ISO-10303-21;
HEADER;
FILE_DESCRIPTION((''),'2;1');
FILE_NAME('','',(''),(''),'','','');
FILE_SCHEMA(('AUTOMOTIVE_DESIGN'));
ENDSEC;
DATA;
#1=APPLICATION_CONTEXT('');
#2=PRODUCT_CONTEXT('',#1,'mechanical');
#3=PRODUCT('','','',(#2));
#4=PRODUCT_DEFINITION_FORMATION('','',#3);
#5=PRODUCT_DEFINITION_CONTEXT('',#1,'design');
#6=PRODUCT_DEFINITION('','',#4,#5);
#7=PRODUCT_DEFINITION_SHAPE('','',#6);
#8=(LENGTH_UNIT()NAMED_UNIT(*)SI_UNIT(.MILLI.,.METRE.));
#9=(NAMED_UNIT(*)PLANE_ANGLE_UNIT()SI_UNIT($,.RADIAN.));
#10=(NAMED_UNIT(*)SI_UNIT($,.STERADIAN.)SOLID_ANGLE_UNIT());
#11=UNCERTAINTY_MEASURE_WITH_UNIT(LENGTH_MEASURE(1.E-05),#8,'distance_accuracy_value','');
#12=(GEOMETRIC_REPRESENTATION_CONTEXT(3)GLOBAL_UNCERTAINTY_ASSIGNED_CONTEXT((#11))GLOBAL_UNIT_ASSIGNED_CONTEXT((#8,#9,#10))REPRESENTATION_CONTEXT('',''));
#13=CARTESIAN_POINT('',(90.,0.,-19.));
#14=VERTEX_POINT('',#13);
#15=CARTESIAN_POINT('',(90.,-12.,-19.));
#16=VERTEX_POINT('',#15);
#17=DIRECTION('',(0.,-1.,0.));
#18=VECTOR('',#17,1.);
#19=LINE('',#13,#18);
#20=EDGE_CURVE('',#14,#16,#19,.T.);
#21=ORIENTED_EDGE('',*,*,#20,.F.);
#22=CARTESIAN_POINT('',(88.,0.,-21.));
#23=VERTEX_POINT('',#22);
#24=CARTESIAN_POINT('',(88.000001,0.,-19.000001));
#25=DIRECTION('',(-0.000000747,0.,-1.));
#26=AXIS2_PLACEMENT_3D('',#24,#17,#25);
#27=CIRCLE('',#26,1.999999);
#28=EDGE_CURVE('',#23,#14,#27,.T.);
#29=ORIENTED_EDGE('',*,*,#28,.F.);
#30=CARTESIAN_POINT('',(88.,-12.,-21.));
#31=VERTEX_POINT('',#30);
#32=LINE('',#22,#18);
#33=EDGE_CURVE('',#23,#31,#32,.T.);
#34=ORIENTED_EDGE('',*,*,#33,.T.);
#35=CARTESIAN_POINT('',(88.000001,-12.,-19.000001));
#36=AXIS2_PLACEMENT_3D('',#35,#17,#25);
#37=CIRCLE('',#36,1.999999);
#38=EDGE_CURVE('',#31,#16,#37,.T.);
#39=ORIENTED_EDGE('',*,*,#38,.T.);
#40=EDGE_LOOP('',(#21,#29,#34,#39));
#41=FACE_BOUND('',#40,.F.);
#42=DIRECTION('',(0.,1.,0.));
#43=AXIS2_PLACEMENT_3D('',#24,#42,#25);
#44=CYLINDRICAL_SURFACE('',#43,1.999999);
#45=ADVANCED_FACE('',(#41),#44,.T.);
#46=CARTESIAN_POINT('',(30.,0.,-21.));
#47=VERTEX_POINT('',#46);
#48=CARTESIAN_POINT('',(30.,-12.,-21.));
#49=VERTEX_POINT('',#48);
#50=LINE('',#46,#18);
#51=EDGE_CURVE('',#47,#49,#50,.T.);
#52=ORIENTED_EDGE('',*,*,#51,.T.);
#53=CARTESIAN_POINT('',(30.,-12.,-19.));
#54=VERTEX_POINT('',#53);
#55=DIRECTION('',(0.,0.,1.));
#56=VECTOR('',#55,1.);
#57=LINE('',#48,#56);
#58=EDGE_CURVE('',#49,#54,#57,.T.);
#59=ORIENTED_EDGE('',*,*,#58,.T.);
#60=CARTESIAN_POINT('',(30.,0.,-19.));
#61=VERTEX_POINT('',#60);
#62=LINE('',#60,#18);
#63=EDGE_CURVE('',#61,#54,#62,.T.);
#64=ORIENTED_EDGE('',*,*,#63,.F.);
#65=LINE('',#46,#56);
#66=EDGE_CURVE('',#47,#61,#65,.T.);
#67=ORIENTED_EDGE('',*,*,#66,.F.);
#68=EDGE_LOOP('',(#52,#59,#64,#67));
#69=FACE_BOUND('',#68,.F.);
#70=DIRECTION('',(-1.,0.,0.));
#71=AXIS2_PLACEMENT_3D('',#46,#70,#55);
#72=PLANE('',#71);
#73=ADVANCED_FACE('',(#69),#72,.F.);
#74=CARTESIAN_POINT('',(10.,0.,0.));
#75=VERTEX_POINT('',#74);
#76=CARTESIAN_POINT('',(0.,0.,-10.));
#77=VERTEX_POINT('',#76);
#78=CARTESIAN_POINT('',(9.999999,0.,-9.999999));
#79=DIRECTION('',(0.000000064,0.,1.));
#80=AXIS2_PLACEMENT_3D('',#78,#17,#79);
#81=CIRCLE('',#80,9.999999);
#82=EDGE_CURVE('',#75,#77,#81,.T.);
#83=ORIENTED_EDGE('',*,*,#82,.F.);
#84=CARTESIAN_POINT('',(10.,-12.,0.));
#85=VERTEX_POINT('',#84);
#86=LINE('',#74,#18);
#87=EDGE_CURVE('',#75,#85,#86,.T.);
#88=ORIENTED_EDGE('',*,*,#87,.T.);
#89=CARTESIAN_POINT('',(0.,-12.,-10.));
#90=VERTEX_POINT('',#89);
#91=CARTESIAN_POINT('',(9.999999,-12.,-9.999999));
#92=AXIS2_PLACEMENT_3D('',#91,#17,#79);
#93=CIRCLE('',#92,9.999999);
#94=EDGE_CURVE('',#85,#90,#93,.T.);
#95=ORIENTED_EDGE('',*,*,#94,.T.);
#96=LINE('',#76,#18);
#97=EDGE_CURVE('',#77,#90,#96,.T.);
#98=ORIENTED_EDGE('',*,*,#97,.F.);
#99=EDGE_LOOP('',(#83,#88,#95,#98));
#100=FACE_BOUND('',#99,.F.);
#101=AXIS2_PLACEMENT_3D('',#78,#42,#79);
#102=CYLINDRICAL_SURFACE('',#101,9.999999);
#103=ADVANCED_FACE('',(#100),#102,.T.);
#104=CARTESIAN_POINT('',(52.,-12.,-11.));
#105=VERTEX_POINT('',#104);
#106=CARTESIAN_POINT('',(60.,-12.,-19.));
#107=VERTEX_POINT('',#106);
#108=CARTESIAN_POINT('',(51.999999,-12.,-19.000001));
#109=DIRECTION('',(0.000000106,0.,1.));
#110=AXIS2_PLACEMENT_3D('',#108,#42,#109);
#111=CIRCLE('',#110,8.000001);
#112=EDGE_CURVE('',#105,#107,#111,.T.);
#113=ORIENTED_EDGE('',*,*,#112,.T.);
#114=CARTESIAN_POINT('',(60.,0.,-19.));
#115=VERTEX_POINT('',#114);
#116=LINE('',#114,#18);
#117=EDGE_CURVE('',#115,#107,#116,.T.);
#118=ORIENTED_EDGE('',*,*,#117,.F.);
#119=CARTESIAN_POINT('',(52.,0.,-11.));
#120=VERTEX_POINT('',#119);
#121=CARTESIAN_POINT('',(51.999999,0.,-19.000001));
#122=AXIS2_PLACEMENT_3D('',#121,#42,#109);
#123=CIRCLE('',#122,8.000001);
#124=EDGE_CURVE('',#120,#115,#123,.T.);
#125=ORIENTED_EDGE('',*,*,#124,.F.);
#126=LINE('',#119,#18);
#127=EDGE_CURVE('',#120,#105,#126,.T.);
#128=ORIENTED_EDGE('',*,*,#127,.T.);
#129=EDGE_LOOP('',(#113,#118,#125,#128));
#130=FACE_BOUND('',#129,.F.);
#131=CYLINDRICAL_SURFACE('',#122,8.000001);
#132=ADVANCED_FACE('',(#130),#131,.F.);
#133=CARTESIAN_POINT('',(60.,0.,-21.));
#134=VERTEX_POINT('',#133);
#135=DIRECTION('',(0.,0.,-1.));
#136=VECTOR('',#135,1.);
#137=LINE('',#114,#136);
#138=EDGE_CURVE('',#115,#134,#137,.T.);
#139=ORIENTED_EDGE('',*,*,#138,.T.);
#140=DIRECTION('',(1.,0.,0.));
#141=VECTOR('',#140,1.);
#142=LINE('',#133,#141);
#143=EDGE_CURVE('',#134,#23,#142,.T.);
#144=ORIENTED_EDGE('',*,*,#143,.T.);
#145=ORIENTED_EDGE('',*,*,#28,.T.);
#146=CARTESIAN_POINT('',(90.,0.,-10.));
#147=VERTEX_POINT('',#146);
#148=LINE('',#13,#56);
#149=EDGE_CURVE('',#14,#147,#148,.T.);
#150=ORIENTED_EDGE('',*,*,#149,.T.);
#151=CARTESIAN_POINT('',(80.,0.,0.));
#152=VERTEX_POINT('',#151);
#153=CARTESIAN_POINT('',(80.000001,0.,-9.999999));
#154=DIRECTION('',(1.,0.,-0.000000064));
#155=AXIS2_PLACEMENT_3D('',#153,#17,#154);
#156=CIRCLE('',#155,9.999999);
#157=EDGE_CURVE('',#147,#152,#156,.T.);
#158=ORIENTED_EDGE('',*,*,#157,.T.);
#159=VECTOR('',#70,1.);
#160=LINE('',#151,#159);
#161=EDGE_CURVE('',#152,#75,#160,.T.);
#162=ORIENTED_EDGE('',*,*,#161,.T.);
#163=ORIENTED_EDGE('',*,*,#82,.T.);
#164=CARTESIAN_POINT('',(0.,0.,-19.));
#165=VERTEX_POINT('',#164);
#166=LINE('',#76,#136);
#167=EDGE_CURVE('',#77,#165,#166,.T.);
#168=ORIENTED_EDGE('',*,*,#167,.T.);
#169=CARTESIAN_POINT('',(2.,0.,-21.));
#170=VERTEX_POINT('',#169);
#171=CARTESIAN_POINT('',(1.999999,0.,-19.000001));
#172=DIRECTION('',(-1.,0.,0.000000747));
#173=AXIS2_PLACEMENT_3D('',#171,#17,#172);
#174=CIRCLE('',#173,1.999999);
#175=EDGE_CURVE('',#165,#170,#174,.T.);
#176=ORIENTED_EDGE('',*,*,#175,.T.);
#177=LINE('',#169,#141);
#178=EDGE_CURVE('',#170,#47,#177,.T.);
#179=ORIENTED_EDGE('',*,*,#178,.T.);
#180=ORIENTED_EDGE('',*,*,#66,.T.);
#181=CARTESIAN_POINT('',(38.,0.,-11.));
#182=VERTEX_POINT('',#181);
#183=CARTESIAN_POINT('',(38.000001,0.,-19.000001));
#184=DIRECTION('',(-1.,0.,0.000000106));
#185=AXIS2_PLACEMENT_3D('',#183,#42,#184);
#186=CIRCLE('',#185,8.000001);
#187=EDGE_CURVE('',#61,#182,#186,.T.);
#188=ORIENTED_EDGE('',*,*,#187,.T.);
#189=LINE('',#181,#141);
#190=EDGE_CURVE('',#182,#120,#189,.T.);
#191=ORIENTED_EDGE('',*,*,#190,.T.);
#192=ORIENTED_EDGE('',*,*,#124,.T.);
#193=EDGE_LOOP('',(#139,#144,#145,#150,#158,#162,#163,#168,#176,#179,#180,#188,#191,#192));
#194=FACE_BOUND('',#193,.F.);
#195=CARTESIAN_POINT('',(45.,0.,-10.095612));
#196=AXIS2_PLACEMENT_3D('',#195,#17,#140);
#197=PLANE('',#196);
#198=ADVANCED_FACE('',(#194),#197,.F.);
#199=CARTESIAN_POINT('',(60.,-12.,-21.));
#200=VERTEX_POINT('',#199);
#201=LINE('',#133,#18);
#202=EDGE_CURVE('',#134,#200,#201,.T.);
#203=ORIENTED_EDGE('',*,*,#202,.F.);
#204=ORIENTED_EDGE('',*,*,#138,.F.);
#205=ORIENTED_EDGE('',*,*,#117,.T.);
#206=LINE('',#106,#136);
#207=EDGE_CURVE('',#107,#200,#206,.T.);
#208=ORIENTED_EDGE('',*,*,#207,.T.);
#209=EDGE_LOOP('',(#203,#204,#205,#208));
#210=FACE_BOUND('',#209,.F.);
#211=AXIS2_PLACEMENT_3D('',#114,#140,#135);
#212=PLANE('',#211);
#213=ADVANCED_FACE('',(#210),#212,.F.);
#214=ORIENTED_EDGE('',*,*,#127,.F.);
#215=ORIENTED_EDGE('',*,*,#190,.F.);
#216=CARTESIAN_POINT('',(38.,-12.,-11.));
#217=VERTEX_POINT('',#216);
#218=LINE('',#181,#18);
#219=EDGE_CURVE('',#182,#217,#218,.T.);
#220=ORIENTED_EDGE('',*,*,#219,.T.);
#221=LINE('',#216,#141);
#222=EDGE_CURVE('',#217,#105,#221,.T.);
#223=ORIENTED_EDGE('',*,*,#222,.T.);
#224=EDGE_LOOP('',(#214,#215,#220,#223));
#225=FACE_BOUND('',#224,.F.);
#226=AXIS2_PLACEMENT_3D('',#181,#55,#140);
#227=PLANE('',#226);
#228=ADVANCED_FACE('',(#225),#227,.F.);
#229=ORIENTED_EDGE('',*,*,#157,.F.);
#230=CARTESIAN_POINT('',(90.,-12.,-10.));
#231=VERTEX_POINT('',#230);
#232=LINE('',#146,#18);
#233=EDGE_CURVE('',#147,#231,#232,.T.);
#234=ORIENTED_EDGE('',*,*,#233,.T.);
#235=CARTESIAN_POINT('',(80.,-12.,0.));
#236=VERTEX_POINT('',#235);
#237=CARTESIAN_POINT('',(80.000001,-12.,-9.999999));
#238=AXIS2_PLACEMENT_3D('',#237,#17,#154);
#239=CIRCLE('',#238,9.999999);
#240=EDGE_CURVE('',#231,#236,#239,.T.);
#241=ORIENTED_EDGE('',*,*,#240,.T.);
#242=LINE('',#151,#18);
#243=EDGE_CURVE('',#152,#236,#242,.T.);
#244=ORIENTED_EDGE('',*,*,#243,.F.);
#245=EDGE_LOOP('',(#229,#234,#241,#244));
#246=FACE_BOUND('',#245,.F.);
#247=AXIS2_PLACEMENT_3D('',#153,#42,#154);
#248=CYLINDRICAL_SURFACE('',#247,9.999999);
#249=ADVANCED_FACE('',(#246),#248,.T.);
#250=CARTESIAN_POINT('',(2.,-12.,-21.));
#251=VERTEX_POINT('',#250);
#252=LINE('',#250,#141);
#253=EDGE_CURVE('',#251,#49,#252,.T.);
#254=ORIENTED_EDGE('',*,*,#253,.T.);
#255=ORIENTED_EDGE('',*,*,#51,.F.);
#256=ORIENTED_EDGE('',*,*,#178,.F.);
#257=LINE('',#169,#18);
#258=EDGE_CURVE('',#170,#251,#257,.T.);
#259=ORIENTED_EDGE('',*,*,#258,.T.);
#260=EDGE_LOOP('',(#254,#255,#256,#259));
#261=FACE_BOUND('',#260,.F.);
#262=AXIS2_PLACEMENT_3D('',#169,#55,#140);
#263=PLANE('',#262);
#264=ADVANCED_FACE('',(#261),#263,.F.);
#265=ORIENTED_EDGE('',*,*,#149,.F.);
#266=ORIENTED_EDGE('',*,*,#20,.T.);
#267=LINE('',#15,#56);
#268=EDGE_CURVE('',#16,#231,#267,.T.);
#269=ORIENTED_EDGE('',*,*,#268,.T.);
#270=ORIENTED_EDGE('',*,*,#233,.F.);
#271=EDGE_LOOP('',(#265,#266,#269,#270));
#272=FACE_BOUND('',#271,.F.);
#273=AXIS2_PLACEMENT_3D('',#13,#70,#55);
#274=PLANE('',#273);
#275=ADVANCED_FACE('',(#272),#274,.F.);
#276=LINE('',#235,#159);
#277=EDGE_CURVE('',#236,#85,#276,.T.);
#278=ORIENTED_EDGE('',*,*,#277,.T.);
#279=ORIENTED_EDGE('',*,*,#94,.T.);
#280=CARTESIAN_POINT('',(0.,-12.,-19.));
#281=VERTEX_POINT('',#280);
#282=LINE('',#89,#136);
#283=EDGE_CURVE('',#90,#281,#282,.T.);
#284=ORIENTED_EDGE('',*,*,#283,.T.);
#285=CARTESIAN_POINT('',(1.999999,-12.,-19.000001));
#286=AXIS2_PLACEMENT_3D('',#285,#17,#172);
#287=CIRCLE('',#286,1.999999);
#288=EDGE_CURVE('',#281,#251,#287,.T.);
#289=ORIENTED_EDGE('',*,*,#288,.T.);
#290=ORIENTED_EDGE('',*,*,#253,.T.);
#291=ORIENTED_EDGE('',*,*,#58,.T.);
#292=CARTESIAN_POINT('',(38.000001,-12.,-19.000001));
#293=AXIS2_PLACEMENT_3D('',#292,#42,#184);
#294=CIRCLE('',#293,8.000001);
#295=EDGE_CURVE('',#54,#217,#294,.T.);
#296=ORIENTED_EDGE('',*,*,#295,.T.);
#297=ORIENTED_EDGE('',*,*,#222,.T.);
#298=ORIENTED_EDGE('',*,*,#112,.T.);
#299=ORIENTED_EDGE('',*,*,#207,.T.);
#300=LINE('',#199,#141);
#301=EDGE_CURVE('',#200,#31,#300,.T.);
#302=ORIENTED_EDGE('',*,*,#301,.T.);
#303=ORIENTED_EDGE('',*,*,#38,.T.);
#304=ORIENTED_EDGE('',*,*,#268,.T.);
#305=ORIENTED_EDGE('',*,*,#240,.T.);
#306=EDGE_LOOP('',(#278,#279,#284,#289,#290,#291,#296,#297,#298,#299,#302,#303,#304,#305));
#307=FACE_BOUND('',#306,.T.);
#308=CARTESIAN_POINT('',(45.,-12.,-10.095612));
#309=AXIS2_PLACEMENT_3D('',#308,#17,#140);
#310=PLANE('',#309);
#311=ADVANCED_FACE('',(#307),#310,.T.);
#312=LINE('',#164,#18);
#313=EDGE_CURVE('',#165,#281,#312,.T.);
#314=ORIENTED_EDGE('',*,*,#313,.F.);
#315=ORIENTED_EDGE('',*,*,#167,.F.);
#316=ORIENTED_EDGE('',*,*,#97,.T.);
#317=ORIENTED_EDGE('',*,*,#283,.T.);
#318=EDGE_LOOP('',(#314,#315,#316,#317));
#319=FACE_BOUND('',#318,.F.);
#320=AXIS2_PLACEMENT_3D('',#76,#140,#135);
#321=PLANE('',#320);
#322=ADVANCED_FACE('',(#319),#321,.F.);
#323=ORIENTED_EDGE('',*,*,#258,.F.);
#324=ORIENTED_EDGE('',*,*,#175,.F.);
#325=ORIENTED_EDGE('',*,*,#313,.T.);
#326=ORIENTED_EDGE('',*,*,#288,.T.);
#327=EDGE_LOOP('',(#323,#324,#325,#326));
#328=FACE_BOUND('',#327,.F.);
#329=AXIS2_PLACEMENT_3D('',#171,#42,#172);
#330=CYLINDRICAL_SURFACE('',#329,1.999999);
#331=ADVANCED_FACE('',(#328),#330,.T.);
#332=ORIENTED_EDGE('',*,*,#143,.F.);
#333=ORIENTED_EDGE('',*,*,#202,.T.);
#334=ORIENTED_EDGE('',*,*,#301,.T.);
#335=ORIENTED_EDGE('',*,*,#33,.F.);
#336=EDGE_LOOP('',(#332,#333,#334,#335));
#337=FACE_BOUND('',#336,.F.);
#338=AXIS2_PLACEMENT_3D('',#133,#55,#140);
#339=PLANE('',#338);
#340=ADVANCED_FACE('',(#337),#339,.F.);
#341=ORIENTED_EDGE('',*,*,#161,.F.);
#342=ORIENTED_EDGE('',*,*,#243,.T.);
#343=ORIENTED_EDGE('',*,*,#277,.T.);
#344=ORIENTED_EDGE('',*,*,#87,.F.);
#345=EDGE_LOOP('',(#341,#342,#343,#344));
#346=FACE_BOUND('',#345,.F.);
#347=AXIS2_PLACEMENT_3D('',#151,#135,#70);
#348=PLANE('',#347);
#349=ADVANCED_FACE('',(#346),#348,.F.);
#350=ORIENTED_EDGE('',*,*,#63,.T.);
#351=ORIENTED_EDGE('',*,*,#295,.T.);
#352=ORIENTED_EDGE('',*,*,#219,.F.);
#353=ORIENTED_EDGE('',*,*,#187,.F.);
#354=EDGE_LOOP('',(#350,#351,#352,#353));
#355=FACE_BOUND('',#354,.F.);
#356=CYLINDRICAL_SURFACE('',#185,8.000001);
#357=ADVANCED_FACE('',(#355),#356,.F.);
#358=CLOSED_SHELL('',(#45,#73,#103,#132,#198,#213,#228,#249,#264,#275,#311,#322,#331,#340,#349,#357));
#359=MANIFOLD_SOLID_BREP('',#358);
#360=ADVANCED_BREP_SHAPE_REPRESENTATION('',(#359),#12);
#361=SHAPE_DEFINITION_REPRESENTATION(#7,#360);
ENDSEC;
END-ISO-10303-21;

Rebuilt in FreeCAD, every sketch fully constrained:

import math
import FreeCAD as App
import Part
import Sketcher

V = App.Vector

doc = App.newDocument("Part")
body = doc.addObject("PartDesign::Body", "Body")

sketch1 = body.newObject("Sketcher::SketchObject", "Sketch")
sketch1.AttachmentSupport = (doc.getObject("XZ_Plane"), [""])
sketch1.MapMode = "FlatFace"
sketch1.addGeometry(Part.LineSegment(V(80, 0, 0), V(10, 0, 0)), False)
sketch1.addGeometry(Part.ArcOfCircle(Part.Circle(V(10, -10, 0), V(0, 0, 1), 10), math.radians(90), math.radians(180)), False)
sketch1.addGeometry(Part.LineSegment(V(0, -10, 0), V(0, -19, 0)), False)
sketch1.addGeometry(Part.ArcOfCircle(Part.Circle(V(2, -19, 0), V(0, 0, 1), 2), math.radians(180), math.radians(270)), False)
sketch1.addGeometry(Part.LineSegment(V(2, -21, 0), V(30, -21, 0)), False)
sketch1.addGeometry(Part.LineSegment(V(30, -21, 0), V(30, -19, 0)), False)
sketch1.addGeometry(Part.ArcOfCircle(Part.Circle(V(38, -19, 0), V(0, 0, 1), 8), math.radians(90), math.radians(180)), False)
sketch1.addGeometry(Part.LineSegment(V(38, -11, 0), V(52, -11, 0)), False)
sketch1.addGeometry(Part.ArcOfCircle(Part.Circle(V(52, -19, 0), V(0, 0, 1), 8), math.radians(0), math.radians(90)), False)
sketch1.addGeometry(Part.LineSegment(V(60, -19, 0), V(60, -21, 0)), False)
sketch1.addGeometry(Part.LineSegment(V(60, -21, 0), V(88, -21, 0)), False)
sketch1.addGeometry(Part.ArcOfCircle(Part.Circle(V(88, -19, 0), V(0, 0, 1), 2), math.radians(-90), math.radians(0)), False)
sketch1.addGeometry(Part.LineSegment(V(90, -19, 0), V(90, -10, 0)), False)
sketch1.addGeometry(Part.ArcOfCircle(Part.Circle(V(80, -10, 0), V(0, 0, 1), 10), math.radians(0), math.radians(90)), False)
sketch1.addConstraint(Sketcher.Constraint("Tangent", 0, 2, 1, 1))
sketch1.addConstraint(Sketcher.Constraint("Tangent", 1, 2, 2, 1))
sketch1.addConstraint(Sketcher.Constraint("Tangent", 2, 2, 3, 1))
sketch1.addConstraint(Sketcher.Constraint("Tangent", 3, 2, 4, 1))
sketch1.addConstraint(Sketcher.Constraint("Coincident", 4, 2, 5, 1))
sketch1.addConstraint(Sketcher.Constraint("Tangent", 5, 2, 6, 2))
sketch1.addConstraint(Sketcher.Constraint("Tangent", 6, 1, 7, 1))
sketch1.addConstraint(Sketcher.Constraint("Tangent", 7, 2, 8, 2))
sketch1.addConstraint(Sketcher.Constraint("Tangent", 8, 1, 9, 1))
sketch1.addConstraint(Sketcher.Constraint("Coincident", 9, 2, 10, 1))
sketch1.addConstraint(Sketcher.Constraint("Tangent", 10, 2, 11, 1))
sketch1.addConstraint(Sketcher.Constraint("Tangent", 11, 2, 12, 1))
sketch1.addConstraint(Sketcher.Constraint("Tangent", 12, 2, 13, 1))
sketch1.addConstraint(Sketcher.Constraint("Tangent", 13, 2, 0, 1))
sketch1.addConstraint(Sketcher.Constraint("Horizontal", 0))
sketch1.addConstraint(Sketcher.Constraint("Vertical", 2))
sketch1.addConstraint(Sketcher.Constraint("Horizontal", 4))
sketch1.addConstraint(Sketcher.Constraint("Vertical", 5))
sketch1.addConstraint(Sketcher.Constraint("Horizontal", 7))
sketch1.addConstraint(Sketcher.Constraint("Vertical", 9))
sketch1.addConstraint(Sketcher.Constraint("Horizontal", 10))
sketch1.addConstraint(Sketcher.Constraint("Vertical", 12))
sketch1.addConstraint(Sketcher.Constraint("Equal", 6, 8))
sketch1.addConstraint(Sketcher.Constraint("Equal", 3, 11))
sketch1.addConstraint(Sketcher.Constraint("Equal", 1, 13))
sketch1.addConstraint(Sketcher.Constraint("PointOnObject", 0, 2, -1))
sketch1.addConstraint(Sketcher.Constraint("PointOnObject", 1, 2, -2))
sketch1.addConstraint(Sketcher.Constraint("Horizontal", 3, 3, 6, 3))
sketch1.addConstraint(Sketcher.Constraint("Horizontal", 8, 3, 11, 3))
sketch1.addConstraint(Sketcher.Constraint("Equal", 4, 10))
sketch1.addConstraint(Sketcher.Constraint("Radius", 1, 9.999999))
sketch1.addConstraint(Sketcher.Constraint("Radius", 3, 1.999999))
sketch1.addConstraint(Sketcher.Constraint("Radius", 6, 8.000001))
sketch1.addConstraint(Sketcher.Constraint("DistanceX", 0, 2, 0, 1, 70.0))
sketch1.addConstraint(Sketcher.Constraint("DistanceX", 4, 1, 4, 2, 28.0))
sketch1.addConstraint(Sketcher.Constraint("DistanceY", 2, 2, 2, 1, 9.0))
pad1 = body.newObject("PartDesign::Pad", "Pad")
pad1.Profile = sketch1
pad1.Length = 12

doc.recompute()
